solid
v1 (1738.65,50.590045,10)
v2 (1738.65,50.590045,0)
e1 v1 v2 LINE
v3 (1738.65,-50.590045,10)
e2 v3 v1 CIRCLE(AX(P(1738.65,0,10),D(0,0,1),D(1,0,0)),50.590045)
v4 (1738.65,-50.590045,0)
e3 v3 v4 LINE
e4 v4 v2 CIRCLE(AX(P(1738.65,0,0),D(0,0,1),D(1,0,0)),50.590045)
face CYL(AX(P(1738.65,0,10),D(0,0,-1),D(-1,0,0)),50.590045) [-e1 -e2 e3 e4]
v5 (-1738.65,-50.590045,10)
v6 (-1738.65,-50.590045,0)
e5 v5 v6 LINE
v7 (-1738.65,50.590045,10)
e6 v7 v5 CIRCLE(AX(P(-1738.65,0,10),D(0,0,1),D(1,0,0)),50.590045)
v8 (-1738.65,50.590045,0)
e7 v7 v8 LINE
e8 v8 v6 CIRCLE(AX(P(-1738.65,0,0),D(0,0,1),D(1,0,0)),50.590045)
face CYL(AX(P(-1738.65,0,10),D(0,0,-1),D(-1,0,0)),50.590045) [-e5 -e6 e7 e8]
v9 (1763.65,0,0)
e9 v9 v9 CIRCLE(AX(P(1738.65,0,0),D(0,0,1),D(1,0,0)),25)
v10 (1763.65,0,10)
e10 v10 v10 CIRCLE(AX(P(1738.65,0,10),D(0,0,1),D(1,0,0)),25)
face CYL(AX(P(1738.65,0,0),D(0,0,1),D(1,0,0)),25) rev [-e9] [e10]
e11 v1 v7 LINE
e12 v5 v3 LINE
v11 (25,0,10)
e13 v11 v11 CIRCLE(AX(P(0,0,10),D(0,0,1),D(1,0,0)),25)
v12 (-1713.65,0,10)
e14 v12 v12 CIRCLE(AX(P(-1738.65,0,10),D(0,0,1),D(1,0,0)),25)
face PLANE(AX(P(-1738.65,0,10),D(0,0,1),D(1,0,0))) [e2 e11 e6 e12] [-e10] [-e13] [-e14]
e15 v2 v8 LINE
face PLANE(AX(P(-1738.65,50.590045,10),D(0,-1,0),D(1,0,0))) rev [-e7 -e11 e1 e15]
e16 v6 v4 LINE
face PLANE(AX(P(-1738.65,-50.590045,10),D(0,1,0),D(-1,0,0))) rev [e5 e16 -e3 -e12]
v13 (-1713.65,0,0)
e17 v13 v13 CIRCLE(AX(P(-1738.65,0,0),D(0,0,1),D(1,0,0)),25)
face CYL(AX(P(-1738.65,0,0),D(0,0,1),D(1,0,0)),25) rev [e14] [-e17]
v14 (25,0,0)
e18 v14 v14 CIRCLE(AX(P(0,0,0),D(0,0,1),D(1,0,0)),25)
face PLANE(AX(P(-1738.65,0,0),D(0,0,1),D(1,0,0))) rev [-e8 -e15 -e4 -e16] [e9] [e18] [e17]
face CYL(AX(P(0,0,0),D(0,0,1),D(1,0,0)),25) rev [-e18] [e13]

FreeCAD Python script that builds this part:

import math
import FreeCAD as App
import Part
import Sketcher
from FreeCAD import Vector

doc = App.newDocument("Part")
body = doc.addObject("PartDesign::Body", "Body")

# Sketch on XY plane
sketch1 = body.newObject("Sketcher::SketchObject", "Sketch")
sketch1.AttachmentSupport = (doc.getObject("XY_Plane"), [""])
sketch1.MapMode = "FlatFace"
sketch1.addGeometry([
    Part.LineSegment(Vector(1739, 51, 0), Vector(-1739, 51, 0)),
    Part.ArcOfCircle(Part.Circle(Vector(-1739, 0, 0), Vector(0, 0, 1), 51), math.radians(90), math.radians(270)),
    Part.LineSegment(Vector(-1739, -51, 0), Vector(1739, -51, 0)),
    Part.ArcOfCircle(Part.Circle(Vector(1739, 0, 0), Vector(0, 0, 1), 51), math.radians(-90), math.radians(90)),
], False)
sketch1.addConstraint([
    Sketcher.Constraint("Tangent", 0, 2, 1, 1),
    Sketcher.Constraint("Tangent", 1, 2, 2, 1),
    Sketcher.Constraint("Tangent", 2, 2, 3, 1),
    Sketcher.Constraint("Tangent", 3, 2, 0, 1),
    Sketcher.Constraint("Horizontal", 0),
    Sketcher.Constraint("Horizontal", 2),
    Sketcher.Constraint("Symmetric", 1, 3, 3, 3, -1, 1),
    Sketcher.Constraint("DistanceX", 0, 2, 0, 1, 3477.3),
    Sketcher.Constraint("Radius", 1, 50.590045),
])
pad1 = body.newObject("PartDesign::Pad", "Pad")
pad1.Profile = sketch1
pad1.Length = 10

# Sketch on XY plane
sketch2 = body.newObject("Sketcher::SketchObject", "Sketch001")
sketch2.AttachmentSupport = (doc.getObject("XY_Plane"), [""])
sketch2.MapMode = "FlatFace"
sketch2.AttachmentOffset = App.Placement(Vector(0, 0, 10), App.Rotation())
sketch2.addGeometry([
    Part.Circle(Vector(0, 0, 0), Vector(0, 0, 1), 25),
    Part.Circle(Vector(-1739, 0, 0), Vector(0, 0, 1), 25),
    Part.Circle(Vector(1739, 0, 0), Vector(0, 0, 1), 25),
], False)
sketch2.addConstraint([
    Sketcher.Constraint("Coincident", 0, 3, -1, 1),
    Sketcher.Constraint("Equal", 0, 1),
    Sketcher.Constraint("Equal", 1, 2),
    Sketcher.Constraint("Symmetric", 1, 3, 2, 3, -1, 1),
    Sketcher.Constraint("PointOnObject", 1, 3, -1),
    Sketcher.Constraint("Diameter", 0, 50.0),
    Sketcher.Constraint("DistanceX", 1, 3, 2, 3, 3477.3),
])
pocket1 = body.newObject("PartDesign::Pocket", "Pocket")
pocket1.Profile = sketch2
pocket1.Length = 10

doc.recompute()
